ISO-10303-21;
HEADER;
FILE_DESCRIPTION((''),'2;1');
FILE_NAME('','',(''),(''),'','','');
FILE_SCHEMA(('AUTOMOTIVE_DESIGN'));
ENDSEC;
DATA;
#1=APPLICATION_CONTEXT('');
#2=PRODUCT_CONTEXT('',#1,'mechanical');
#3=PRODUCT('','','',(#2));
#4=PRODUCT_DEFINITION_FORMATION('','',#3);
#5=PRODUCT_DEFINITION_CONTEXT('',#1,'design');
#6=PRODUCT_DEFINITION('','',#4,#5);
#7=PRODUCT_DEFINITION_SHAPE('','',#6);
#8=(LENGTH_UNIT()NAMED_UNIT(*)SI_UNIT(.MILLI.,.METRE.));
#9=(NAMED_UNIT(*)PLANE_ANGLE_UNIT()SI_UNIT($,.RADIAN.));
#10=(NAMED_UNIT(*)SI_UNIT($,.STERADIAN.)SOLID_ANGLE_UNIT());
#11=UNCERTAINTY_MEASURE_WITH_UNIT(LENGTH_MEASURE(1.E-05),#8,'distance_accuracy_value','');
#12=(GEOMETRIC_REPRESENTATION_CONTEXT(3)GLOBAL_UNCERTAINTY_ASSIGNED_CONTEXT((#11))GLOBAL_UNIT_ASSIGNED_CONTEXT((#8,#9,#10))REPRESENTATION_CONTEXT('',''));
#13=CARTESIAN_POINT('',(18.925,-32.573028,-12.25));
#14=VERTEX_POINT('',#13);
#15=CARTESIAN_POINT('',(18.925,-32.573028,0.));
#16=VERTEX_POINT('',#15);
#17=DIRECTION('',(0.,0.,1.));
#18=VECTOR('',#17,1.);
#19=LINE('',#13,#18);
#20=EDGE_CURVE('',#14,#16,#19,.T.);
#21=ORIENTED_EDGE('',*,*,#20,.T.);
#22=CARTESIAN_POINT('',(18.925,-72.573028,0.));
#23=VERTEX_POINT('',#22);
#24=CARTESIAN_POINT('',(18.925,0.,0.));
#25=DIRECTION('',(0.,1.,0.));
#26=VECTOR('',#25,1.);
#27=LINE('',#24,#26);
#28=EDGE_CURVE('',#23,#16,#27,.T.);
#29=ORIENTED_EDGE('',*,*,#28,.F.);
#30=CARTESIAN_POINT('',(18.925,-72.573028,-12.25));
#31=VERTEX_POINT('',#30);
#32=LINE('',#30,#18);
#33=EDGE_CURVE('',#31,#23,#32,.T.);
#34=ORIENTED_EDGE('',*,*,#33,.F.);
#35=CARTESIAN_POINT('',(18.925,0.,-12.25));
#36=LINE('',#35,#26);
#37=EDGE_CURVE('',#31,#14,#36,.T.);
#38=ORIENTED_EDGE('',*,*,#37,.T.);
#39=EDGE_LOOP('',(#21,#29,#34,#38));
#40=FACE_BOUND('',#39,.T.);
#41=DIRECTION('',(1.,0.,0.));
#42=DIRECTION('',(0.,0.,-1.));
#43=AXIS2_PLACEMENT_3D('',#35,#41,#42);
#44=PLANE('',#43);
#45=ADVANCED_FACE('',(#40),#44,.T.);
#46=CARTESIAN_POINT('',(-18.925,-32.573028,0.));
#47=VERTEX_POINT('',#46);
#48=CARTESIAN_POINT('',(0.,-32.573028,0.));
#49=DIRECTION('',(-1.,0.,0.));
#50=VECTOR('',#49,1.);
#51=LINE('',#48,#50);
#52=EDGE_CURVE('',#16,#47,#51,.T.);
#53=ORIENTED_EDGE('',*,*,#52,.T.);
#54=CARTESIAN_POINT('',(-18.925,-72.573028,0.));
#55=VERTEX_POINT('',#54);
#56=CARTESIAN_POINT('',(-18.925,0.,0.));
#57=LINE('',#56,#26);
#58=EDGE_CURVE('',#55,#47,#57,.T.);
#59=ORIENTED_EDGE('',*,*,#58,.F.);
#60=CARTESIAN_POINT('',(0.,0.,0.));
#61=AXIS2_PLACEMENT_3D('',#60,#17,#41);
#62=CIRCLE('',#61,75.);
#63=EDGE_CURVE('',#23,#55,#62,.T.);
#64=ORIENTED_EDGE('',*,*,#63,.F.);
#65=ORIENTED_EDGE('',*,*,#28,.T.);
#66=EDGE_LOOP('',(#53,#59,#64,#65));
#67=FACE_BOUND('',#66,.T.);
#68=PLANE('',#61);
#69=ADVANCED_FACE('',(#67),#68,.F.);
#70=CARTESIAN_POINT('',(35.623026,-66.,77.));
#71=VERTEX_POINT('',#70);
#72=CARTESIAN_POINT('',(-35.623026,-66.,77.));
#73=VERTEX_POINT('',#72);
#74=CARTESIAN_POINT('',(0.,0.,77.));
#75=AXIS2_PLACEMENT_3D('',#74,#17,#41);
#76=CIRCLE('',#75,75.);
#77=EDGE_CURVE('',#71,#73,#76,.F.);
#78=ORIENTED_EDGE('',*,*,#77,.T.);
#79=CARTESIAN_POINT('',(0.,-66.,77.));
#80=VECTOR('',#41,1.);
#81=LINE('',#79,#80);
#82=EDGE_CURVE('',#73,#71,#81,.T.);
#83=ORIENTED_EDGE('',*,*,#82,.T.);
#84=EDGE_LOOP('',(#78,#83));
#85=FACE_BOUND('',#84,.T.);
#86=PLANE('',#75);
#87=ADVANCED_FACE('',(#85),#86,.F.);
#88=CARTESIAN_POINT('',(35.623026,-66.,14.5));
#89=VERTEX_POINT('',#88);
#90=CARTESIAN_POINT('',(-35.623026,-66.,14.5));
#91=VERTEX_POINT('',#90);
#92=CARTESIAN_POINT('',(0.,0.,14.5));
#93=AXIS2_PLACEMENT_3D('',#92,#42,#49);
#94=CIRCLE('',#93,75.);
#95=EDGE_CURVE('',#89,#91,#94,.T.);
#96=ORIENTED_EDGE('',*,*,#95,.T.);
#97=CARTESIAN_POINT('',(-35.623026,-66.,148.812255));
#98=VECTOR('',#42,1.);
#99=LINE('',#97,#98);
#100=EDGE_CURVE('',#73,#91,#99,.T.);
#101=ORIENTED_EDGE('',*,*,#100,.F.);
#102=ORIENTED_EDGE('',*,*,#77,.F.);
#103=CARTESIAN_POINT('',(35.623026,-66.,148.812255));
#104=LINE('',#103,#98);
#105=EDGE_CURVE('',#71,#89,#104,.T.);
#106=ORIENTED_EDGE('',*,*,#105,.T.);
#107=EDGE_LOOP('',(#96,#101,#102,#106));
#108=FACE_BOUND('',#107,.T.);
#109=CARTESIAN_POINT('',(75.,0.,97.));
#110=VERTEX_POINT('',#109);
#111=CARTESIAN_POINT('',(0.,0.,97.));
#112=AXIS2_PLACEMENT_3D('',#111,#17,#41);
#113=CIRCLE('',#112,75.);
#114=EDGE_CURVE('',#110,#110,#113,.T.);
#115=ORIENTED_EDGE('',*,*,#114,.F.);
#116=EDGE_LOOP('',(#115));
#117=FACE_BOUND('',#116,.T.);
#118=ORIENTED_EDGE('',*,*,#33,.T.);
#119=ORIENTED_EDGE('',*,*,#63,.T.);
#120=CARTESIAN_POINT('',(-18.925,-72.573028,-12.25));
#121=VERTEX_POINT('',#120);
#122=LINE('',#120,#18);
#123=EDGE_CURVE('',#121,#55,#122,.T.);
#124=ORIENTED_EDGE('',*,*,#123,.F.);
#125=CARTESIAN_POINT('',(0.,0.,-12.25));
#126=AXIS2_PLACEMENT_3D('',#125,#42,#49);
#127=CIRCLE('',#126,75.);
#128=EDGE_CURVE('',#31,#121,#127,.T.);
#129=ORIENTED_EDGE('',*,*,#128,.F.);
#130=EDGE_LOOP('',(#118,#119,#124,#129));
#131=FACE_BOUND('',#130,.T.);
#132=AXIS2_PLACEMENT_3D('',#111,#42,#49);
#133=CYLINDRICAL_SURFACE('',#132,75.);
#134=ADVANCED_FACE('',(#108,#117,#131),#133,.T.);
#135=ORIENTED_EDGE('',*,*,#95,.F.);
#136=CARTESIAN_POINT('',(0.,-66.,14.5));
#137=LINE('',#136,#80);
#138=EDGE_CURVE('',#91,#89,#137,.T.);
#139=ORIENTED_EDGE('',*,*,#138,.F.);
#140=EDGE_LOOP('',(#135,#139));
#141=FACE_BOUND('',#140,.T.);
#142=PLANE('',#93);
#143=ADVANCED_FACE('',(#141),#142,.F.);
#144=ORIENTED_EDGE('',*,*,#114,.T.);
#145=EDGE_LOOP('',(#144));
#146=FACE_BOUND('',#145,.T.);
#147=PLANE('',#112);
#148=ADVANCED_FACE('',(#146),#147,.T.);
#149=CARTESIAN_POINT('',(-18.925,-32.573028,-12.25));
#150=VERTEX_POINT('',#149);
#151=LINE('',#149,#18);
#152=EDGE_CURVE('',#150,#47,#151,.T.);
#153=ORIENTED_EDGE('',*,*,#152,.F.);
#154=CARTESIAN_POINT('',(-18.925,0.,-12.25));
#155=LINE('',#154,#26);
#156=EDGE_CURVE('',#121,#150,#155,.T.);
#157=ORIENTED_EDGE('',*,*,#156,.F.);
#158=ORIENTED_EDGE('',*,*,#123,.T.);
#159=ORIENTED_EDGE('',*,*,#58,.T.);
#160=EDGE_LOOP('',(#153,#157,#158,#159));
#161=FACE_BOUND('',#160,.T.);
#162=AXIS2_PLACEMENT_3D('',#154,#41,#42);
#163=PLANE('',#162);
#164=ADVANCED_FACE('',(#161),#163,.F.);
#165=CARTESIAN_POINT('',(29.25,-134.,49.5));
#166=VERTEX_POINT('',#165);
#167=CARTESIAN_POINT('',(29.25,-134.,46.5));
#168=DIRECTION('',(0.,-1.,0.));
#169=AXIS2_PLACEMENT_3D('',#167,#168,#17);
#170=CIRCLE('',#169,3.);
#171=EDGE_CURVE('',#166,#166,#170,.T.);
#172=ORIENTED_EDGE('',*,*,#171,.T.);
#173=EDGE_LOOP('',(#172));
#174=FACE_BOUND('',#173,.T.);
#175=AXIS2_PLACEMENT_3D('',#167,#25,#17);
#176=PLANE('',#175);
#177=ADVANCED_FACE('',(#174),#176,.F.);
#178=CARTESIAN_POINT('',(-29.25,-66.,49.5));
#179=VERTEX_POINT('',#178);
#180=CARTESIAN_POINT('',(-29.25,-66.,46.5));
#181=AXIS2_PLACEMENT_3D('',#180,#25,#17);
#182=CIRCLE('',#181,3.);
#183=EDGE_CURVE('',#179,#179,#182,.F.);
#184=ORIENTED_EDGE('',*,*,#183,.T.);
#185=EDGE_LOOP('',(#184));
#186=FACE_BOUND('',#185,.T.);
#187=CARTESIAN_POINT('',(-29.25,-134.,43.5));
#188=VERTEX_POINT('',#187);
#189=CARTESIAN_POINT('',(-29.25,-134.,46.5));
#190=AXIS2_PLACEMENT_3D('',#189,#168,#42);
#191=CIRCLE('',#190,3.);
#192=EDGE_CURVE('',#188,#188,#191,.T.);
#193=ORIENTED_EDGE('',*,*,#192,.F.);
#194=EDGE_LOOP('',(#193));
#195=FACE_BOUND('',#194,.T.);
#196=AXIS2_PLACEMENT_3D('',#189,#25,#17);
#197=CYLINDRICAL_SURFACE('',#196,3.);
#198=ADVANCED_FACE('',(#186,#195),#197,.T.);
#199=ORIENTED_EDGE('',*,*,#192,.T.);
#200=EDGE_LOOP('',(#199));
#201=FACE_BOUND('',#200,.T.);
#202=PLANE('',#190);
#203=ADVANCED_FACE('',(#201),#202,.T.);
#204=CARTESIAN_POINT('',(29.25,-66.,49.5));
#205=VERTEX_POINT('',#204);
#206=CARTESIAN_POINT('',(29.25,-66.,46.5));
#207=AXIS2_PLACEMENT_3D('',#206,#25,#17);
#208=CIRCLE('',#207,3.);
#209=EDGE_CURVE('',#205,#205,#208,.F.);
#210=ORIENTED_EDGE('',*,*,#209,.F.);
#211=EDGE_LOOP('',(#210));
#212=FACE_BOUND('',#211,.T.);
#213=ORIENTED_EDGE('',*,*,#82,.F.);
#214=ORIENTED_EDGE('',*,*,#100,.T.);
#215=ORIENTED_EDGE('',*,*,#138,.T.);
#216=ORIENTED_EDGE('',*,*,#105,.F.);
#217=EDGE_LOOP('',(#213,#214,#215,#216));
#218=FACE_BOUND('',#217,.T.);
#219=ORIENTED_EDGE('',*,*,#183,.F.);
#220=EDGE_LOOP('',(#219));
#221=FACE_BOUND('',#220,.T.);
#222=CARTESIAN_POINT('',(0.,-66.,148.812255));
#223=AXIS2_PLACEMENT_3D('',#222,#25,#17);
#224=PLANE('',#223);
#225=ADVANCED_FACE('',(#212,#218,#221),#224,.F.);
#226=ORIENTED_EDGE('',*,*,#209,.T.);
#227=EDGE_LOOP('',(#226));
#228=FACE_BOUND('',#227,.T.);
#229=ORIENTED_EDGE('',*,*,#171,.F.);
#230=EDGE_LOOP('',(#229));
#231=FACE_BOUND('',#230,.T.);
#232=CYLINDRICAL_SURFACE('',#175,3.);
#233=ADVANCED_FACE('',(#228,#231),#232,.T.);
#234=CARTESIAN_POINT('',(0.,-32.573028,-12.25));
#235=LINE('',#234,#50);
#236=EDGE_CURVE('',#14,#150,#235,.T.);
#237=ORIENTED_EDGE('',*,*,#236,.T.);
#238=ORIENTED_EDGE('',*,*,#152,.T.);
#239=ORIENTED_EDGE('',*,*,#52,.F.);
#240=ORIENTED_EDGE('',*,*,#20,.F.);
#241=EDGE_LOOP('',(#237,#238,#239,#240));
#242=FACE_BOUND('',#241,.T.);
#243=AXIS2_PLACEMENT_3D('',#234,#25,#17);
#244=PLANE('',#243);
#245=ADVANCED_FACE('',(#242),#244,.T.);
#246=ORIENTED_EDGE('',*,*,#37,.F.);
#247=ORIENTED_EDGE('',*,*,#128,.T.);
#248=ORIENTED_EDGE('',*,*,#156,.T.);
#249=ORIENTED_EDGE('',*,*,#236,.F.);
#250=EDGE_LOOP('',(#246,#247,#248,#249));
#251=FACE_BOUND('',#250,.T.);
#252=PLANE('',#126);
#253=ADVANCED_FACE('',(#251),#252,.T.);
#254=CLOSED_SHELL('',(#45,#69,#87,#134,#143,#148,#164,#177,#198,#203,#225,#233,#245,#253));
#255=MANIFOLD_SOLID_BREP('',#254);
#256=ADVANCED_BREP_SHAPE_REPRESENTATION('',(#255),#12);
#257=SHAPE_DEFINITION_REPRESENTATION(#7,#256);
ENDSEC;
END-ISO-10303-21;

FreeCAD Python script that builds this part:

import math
import FreeCAD as App
import Part
import Sketcher

V = App.Vector


def add_polygon(sketch, points):
    """Adds a closed chain of lines whose ends are joined by coincident constraints."""
    first, n = sketch.GeometryCount, len(points)
    for a, b in zip(points, points[1:] + points[:1]):
        sketch.addGeometry(Part.LineSegment(App.Vector(*a, 0), App.Vector(*b, 0)), False)
    for i in range(n):
        sketch.addConstraint(Sketcher.Constraint("Coincident", first + i, 2, first + (i + 1) % n, 1))

doc = App.newDocument("Part")
body = doc.addObject("PartDesign::Body", "Body")

# Sketch on XY plane
sketch1 = body.newObject("Sketcher::SketchObject", "Sketch")
sketch1.AttachmentSupport = (doc.getObject("XY_Plane"), [""])
sketch1.MapMode = "FlatFace"
sketch1.addGeometry(Part.Circle(V(0, 0, 0), V(0, 0, 1), 75), False)
sketch1.addConstraint(Sketcher.Constraint("Coincident", 0, 3, -1, 1))
sketch1.addConstraint(Sketcher.Constraint("Diameter", 0, 150.0))
pad1 = body.newObject("PartDesign::Pad", "Pad")
pad1.Profile = sketch1
pad1.Length = 97

# Sketch on XY plane
sketch2 = body.newObject("Sketcher::SketchObject", "Sketch001")
sketch2.AttachmentSupport = (doc.getObject("XY_Plane"), [""])
sketch2.MapMode = "FlatFace"
sketch2.AttachmentOffset = App.Placement(V(0, 0, 77), App.Rotation())
add_polygon(sketch2, [(-404.055469, -66), (404.055469, -66), (404.055469, -802.864885), (-404.055469, -802.864885)])  # lines 0-3
sketch2.addConstraint(Sketcher.Constraint("Horizontal", 0))
sketch2.addConstraint(Sketcher.Constraint("Vertical", 1))
sketch2.addConstraint(Sketcher.Constraint("Horizontal", 2))
sketch2.addConstraint(Sketcher.Constraint("Vertical", 3))
sketch2.addConstraint(Sketcher.Constraint("DistanceY", 0, 2, -1, 1, 66.0))
sketch2.addConstraint(Sketcher.Constraint("DistanceX", 0, 1, 0, 2, 808.110937))
sketch2.addConstraint(Sketcher.Constraint("DistanceY", 1, 2, 1, 1, 736.864885))
sketch2.addConstraint(Sketcher.Constraint("DistanceX", -1, 1, 0, 2, 404.055469))
pocket1 = body.newObject("PartDesign::Pocket", "Pocket")
pocket1.Profile = sketch2
pocket1.Length = 62.5

# Sketch on XZ plane
sketch3 = body.newObject("Sketcher::SketchObject", "Sketch002")
sketch3.AttachmentSupport = (doc.getObject("XZ_Plane"), [""])
sketch3.MapMode = "FlatFace"
sketch3.AttachmentOffset = App.Placement(V(0, 0, 66), App.Rotation())
sketch3.addGeometry(Part.Circle(V(-29.25, 46.5, 0), V(0, 0, 1), 3), False)
sketch3.addGeometry(Part.Circle(V(29.25, 46.5, 0), V(0, 0, 1), 3), False)
sketch3.addConstraint(Sketcher.Constraint("Equal", 0, 1))
sketch3.addConstraint(Sketcher.Constraint("Symmetric", 0, 3, 1, 3, -2))
sketch3.addConstraint(Sketcher.Constraint("Diameter", 0, 6.0))
sketch3.addConstraint(Sketcher.Constraint("DistanceY", -1, 1, 0, 3, 46.5))
sketch3.addConstraint(Sketcher.Constraint("DistanceX", 0, 3, 1, 3, 58.5))
pad2 = body.newObject("PartDesign::Pad", "Pad001")
pad2.Profile = sketch3
pad2.Length = 68

# Sketch on XY plane
sketch4 = body.newObject("Sketcher::SketchObject", "Sketch003")
sketch4.AttachmentSupport = (doc.getObject("XY_Plane"), [""])
sketch4.MapMode = "FlatFace"
sketch4.AttachmentOffset = App.Placement(V(0, 0, -12.25), App.Rotation())
sketch4.addGeometry(Part.LineSegment(V(18.925, -32.573028, 0), V(18.925, -72.573028, 0)), False)
sketch4.addGeometry(Part.ArcOfCircle(Part.Circle(V(0, 0, 0), V(0, 0, 1), 75), math.radians(-104.61563), math.radians(-75.38437)), False)
sketch4.addGeometry(Part.LineSegment(V(-18.925, -72.573028, 0), V(-18.925, -32.573028, 0)), False)
sketch4.addGeometry(Part.LineSegment(V(-18.925, -32.573028, 0), V(18.925, -32.573028, 0)), False)
sketch4.addConstraint(Sketcher.Constraint("Coincident", 0, 2, 1, 2))
sketch4.addConstraint(Sketcher.Constraint("Coincident", 1, 1, 2, 1))
sketch4.addConstraint(Sketcher.Constraint("Coincident", 2, 2, 3, 1))
sketch4.addConstraint(Sketcher.Constraint("Coincident", 3, 2, 0, 1))
sketch4.addConstraint(Sketcher.Constraint("Vertical", 0))
sketch4.addConstraint(Sketcher.Constraint("Vertical", 2))
sketch4.addConstraint(Sketcher.Constraint("Horizontal", 3))
sketch4.addConstraint(Sketcher.Constraint("Coincident", 1, 3, -1, 1))
sketch4.addConstraint(Sketcher.Constraint("Horizontal", 0, 2, 1, 1))
sketch4.addConstraint(Sketcher.Constraint("Radius", 1, 75.0))
sketch4.addConstraint(Sketcher.Constraint("DistanceY", 0, 2, 0, 1, 40.0))
sketch4.addConstraint(Sketcher.Constraint("DistanceX", 3, 1, 3, 2, 37.85))
pad3 = body.newObject("PartDesign::Pad", "Pad002")
pad3.Profile = sketch4
pad3.Length = 12.25

doc.recompute()
